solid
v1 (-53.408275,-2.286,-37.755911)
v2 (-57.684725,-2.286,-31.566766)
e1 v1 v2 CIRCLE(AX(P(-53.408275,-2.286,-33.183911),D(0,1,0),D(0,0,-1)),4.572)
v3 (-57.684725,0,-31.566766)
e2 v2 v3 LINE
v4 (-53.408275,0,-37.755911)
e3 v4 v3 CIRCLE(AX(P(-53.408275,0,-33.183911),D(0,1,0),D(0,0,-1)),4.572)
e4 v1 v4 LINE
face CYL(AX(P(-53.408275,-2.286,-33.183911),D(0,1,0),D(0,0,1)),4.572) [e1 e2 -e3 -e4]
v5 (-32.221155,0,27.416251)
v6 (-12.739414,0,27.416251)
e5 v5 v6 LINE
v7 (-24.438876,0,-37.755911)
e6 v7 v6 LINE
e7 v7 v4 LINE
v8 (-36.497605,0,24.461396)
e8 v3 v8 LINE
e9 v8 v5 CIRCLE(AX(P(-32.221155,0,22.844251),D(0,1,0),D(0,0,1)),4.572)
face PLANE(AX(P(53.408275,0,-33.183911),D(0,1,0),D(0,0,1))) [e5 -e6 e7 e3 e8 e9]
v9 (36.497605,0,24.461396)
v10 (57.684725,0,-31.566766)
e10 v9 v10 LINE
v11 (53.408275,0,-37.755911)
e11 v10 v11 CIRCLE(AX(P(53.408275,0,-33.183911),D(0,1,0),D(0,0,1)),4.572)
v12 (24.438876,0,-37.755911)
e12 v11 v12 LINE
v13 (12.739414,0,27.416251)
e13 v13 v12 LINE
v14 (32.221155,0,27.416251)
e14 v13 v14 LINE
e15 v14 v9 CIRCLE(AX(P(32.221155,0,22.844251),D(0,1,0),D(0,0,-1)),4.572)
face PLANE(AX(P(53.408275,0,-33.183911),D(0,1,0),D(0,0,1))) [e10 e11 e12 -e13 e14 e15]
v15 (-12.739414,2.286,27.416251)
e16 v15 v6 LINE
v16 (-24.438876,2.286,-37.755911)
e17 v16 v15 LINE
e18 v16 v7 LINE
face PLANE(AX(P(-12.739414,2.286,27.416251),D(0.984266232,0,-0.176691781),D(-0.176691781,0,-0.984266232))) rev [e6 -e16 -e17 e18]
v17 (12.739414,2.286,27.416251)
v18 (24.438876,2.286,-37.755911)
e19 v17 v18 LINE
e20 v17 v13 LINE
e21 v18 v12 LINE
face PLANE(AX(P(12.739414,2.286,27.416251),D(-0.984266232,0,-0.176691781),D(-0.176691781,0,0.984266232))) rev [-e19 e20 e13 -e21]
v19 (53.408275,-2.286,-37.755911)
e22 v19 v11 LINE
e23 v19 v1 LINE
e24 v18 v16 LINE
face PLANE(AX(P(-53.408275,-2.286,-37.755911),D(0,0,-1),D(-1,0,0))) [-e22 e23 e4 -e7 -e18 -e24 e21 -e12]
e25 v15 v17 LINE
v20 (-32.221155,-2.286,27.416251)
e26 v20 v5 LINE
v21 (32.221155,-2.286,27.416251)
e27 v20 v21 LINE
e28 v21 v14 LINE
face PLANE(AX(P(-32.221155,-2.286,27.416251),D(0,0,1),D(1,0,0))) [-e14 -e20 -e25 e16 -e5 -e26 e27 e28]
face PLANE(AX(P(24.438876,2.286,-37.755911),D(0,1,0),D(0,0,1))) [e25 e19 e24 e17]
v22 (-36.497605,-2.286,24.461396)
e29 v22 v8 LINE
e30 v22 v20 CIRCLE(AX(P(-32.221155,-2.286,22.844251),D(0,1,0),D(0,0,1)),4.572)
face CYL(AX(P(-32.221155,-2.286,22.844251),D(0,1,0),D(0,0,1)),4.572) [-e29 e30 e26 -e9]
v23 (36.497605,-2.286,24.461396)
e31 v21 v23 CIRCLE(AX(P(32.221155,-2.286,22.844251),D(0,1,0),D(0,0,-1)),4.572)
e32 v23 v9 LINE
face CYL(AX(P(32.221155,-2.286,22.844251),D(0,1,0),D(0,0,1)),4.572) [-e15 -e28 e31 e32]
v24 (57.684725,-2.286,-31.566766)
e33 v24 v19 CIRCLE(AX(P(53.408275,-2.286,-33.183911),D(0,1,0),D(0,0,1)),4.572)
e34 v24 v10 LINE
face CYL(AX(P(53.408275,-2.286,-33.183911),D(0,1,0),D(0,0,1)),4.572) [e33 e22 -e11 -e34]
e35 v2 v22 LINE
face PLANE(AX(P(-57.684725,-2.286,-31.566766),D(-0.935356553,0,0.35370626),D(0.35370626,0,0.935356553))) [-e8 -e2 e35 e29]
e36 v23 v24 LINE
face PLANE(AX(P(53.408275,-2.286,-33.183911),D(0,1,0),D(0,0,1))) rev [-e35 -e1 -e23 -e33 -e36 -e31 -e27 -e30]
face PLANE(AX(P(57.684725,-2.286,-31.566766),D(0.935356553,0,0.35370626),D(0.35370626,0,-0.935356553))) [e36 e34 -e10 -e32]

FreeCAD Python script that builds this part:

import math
import FreeCAD as App
import Part
import Sketcher

V = App.Vector
Q = App.Units.Quantity

doc = App.newDocument("Part")
body = doc.addObject("PartDesign::Body", "Body")

# Sketch on XZ plane
sketch1 = body.newObject("Sketcher::SketchObject", "Sketch")
sketch1.AttachmentSupport = (doc.getObject("XZ_Plane"), [""])
sketch1.MapMode = "FlatFace"
sketch1.addGeometry([
    Part.LineSegment(V(53.4, -37.8, 0), V(-53.4, -37.8, 0)),  # 0
    Part.ArcOfCircle(Part.Circle(V(-53.4, -33.2, 0), V(0, 0, 1), 4.6), math.radians(159), math.radians(270)),  # 1
    Part.LineSegment(V(-57.7, -31.6, 0), V(-36.5, 24.5, 0)),  # 2
    Part.ArcOfCircle(Part.Circle(V(-32.2, 22.8, 0), V(0, 0, 1), 4.6), math.radians(90), math.radians(159)),  # 3
    Part.LineSegment(V(-32.2, 27.4, 0), V(32.2, 27.4, 0)),  # 4
    Part.ArcOfCircle(Part.Circle(V(32.2, 22.8, 0), V(0, 0, 1), 4.6), math.radians(21), math.radians(90)),  # 5
    Part.LineSegment(V(36.5, 24.5, 0), V(57.7, -31.6, 0)),  # 6
    Part.ArcOfCircle(Part.Circle(V(53.4, -33.2, 0), V(0, 0, 1), 4.6), math.radians(-90), math.radians(21)),  # 7
], False)
sketch1.addConstraint([
    Sketcher.Constraint("Tangent", 0, 2, 1, 2),
    Sketcher.Constraint("Tangent", 1, 1, 2, 1),
    Sketcher.Constraint("Tangent", 2, 2, 3, 2),
    Sketcher.Constraint("Tangent", 3, 1, 4, 1),
    Sketcher.Constraint("Tangent", 4, 2, 5, 2),
    Sketcher.Constraint("Tangent", 5, 1, 6, 1),
    Sketcher.Constraint("Tangent", 6, 2, 7, 2),
    Sketcher.Constraint("Tangent", 7, 1, 0, 1),
    Sketcher.Constraint("Horizontal", 0),
    Sketcher.Constraint("Horizontal", 4),
    Sketcher.Constraint("Equal", 1, 3),
    Sketcher.Constraint("Equal", 3, 5),
    Sketcher.Constraint("Equal", 5, 7),
    Sketcher.Constraint("Symmetric", 2, 2, 5, 1, -2),
    Sketcher.Constraint("Radius", 1, Q("0.18 in")),
    Sketcher.Constraint("DistanceX", 0, 2, 0, 1, 106.81655),
    Sketcher.Constraint("DistanceX", 4, 1, 4, 2, 64.44231),
    Sketcher.Constraint("DistanceX", 1, 1, 7, 3, 111.093),
    Sketcher.Constraint("DistanceY", 1, 3, -1, 1, 33.183911),
])
pad1 = body.newObject("PartDesign::Pad", "Pad")
pad1.Profile = sketch1
pad1.Length = Q("0.09 in")

# Sketch on XZ plane
sketch2 = body.newObject("Sketcher::SketchObject", "Sketch001")
sketch2.AttachmentSupport = (doc.getObject("XZ_Plane"), [""])
sketch2.MapMode = "FlatFace"
sketch2.addGeometry([
    Part.LineSegment(V(-13, 27, 0), V(13, 27, 0)),
    Part.LineSegment(V(13, 27, 0), V(24, -38, 0)),
    Part.LineSegment(V(24, -38, 0), V(-24, -38, 0)),
    Part.LineSegment(V(-24, -38, 0), V(-13, 27, 0)),
], False)
sketch2.addConstraint([
    Sketcher.Constraint("Coincident", 0, 2, 1, 1),
    Sketcher.Constraint("Coincident", 1, 2, 2, 1),
    Sketcher.Constraint("Coincident", 2, 2, 3, 1),
    Sketcher.Constraint("Coincident", 3, 2, 0, 1),
    Sketcher.Constraint("Horizontal", 0),
    Sketcher.Constraint("Horizontal", 2),
    Sketcher.Constraint("Equal", 1, 3),
    Sketcher.Constraint("DistanceX", 0, 1, 0, 2, 25.478828),
    Sketcher.Constraint("DistanceX", 2, 2, 2, 1, 48.877753),
    Sketcher.Constraint("DistanceY", -1, 1, 0, 2, 27.416251),
    Sketcher.Constraint("DistanceY", 1, 2, -1, 1, 37.755911),
    Sketcher.Constraint("DistanceX", -1, 1, 0, 2, 12.739414),
])
pad2 = body.newObject("PartDesign::Pad", "Pad001")
pad2.Profile = sketch2
pad2.Length = Q("0.09 in")
pad2.Reversed = True

doc.recompute()
